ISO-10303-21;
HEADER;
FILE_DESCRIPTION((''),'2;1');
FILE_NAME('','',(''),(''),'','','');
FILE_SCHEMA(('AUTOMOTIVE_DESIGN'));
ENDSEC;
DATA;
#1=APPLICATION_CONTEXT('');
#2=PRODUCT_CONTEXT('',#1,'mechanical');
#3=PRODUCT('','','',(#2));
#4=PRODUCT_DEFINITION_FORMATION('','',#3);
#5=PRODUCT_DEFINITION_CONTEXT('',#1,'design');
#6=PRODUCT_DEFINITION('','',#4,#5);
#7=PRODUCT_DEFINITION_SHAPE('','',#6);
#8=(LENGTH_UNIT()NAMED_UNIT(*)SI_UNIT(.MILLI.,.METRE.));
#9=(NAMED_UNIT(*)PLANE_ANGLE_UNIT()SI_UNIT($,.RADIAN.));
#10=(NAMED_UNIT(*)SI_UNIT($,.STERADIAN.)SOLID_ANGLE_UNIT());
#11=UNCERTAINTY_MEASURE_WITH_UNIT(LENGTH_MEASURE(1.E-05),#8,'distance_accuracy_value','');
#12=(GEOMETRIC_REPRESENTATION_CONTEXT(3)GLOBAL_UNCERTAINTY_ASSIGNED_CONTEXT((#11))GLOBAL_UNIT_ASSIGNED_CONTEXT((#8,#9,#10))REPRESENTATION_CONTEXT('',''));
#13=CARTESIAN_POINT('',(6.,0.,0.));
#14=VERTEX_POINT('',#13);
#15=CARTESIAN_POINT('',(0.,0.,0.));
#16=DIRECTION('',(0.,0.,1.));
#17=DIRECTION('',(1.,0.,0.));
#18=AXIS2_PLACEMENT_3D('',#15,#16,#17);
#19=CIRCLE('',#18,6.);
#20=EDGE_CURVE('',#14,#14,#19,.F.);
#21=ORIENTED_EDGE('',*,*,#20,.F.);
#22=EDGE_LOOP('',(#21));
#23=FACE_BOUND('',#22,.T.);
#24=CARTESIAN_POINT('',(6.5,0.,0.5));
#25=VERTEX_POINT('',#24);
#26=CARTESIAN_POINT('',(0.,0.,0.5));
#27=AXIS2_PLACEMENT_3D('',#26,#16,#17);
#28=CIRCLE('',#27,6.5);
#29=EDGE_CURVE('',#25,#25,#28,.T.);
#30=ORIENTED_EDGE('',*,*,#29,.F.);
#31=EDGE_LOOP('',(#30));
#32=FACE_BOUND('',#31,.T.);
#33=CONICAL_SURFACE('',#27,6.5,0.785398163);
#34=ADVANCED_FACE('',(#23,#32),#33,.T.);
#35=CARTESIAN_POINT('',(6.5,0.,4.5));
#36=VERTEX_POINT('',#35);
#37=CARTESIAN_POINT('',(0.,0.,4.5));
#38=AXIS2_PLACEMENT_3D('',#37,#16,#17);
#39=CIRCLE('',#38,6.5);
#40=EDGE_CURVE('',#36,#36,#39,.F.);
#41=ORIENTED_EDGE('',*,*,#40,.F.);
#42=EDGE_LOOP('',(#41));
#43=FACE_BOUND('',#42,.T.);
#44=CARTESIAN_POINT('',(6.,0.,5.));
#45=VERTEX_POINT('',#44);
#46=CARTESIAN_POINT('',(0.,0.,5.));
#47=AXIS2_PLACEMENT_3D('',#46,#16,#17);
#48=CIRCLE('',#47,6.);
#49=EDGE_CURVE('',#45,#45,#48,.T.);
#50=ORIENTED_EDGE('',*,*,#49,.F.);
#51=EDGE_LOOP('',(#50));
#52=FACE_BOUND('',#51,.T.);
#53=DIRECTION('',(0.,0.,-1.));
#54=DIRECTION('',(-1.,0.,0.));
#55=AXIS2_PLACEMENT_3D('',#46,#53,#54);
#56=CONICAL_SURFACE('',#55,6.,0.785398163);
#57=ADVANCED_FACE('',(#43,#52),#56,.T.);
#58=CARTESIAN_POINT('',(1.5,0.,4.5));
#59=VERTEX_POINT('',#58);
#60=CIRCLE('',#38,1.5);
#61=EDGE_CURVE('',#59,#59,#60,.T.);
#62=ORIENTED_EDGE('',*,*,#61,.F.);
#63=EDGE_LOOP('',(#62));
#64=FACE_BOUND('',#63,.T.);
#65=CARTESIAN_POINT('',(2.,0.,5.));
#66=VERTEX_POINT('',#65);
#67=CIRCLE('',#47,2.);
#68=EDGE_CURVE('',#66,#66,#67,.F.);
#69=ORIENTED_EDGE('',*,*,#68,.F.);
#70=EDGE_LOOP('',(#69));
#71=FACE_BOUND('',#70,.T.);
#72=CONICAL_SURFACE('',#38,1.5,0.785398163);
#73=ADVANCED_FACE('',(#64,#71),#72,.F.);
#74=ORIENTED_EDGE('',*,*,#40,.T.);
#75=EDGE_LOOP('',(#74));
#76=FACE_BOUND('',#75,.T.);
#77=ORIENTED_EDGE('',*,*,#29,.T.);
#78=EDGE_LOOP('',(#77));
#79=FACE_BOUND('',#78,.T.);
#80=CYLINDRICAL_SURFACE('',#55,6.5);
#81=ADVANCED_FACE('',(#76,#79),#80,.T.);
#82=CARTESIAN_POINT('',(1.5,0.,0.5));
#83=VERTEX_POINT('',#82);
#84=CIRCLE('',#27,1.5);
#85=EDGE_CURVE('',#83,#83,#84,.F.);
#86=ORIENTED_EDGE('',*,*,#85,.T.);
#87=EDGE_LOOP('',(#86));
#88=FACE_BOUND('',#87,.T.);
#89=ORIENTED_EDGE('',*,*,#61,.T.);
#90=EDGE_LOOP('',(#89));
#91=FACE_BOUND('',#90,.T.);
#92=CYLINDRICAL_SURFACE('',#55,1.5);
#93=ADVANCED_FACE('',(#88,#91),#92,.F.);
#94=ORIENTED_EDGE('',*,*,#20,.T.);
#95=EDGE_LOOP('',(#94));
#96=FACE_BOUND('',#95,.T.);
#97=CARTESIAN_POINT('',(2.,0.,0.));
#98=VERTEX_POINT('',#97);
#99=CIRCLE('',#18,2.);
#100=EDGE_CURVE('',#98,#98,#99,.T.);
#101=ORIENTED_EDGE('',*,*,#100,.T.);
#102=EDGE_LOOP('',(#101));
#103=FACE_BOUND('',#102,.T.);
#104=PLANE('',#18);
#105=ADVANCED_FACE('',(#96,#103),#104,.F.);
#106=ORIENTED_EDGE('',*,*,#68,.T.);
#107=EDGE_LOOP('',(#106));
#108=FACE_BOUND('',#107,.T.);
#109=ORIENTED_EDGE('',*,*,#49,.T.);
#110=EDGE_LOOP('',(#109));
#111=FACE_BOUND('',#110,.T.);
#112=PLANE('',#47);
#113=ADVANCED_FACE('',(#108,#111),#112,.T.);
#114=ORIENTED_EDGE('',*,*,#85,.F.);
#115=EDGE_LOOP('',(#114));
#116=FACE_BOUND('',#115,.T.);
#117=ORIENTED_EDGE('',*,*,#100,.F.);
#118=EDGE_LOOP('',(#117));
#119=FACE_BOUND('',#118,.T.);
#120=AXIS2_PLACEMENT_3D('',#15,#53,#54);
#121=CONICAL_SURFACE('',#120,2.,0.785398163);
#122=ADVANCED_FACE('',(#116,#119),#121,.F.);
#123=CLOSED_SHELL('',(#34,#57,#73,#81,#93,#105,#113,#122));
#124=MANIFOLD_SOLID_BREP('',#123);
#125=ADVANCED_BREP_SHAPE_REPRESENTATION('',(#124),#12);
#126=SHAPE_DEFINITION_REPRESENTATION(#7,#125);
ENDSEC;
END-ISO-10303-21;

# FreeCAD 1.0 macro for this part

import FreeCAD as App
import Part
import Sketcher

V = App.Vector


def edges_at(feature, points):
    """Names of the edges that pass closest to the given points."""
    edges = feature.Shape.Edges
    near = lambda p: min(range(len(edges)), key=lambda i: edges[i].distToShape(Part.Vertex(*p))[0])
    return sorted({f"Edge{near(p) + 1}" for p in points})

doc = App.newDocument("Part")
body = doc.addObject("PartDesign::Body", "Body")

# Sketch on XY plane
sketch1 = body.newObject("Sketcher::SketchObject", "Sketch")
sketch1.AttachmentSupport = (doc.getObject("XY_Plane"), [""])
sketch1.MapMode = "FlatFace"
sketch1.addGeometry([
    Part.Circle(V(0, 0, 0), V(0, 0, 1), 6.5),
    Part.Circle(V(0, 0, 0), V(0, 0, 1), 1.5),
], False)
sketch1.addConstraint([
    Sketcher.Constraint("Coincident", 0, 3, -1, 1),
    Sketcher.Constraint("Coincident", 1, 3, -1, 1),
    Sketcher.Constraint("Diameter", 0, 13.0),
    Sketcher.Constraint("Diameter", 1, 3.0),
])
pad1 = body.newObject("PartDesign::Pad", "Pad")
pad1.Profile = sketch1
pad1.Length = 5
doc.recompute()

chamfer = body.newObject("PartDesign::Chamfer", "Chamfer")
chamfer.Base = (pad1, edges_at(pad1, [
    (-6.5, 0, 0),
    (-6.5, 0, 5),
    (-1.5, 0, 0),
    (-1.5, 0, 5),
]))
chamfer.Size = 0.5

doc.recompute()
